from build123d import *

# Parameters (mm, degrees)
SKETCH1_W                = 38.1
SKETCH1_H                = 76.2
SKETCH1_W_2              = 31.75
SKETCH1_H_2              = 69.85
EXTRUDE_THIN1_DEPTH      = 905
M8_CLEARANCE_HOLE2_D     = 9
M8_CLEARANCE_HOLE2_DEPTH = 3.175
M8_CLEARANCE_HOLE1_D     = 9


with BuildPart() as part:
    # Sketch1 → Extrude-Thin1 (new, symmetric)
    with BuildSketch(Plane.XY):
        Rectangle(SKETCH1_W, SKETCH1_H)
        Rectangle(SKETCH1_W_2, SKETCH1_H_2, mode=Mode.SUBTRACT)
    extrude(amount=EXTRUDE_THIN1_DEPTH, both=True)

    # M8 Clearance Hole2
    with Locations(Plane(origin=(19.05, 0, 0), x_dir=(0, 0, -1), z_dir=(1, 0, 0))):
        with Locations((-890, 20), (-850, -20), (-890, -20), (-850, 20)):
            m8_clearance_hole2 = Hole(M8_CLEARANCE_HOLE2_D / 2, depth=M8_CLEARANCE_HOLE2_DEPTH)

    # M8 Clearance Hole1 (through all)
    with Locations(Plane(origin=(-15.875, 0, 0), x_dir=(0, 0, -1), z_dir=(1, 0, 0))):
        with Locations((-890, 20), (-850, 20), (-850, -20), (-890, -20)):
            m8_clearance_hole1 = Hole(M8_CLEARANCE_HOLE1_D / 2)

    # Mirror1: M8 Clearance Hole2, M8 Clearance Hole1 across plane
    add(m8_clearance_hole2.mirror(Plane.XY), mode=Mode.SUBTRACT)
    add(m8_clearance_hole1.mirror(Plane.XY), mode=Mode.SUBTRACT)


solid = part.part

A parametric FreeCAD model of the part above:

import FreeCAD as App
import Part
import Sketcher
Q = App.Units.Quantity

doc = App.newDocument("Part")
body = doc.addObject("PartDesign::Body", "Body")

sketch1 = body.newObject("Sketcher::SketchObject", "Sketch")
sketch1.AttachmentSupport = (doc.getObject("XY_Plane"), [""])
sketch1.MapMode = "FlatFace"
sketch1.addGeometry([
    Part.LineSegment(App.Vector(-19, 38, 0), App.Vector(-19, -38, 0)),
    Part.LineSegment(App.Vector(-19, -38, 0), App.Vector(19, -38, 0)),
    Part.LineSegment(App.Vector(19, -38, 0), App.Vector(19, 38, 0)),
    Part.LineSegment(App.Vector(19, 38, 0), App.Vector(-19, 38, 0)),
    Part.LineSegment(App.Vector(16, -35, 0), App.Vector(-16, -35, 0)),
    Part.LineSegment(App.Vector(-16, -35, 0), App.Vector(-16, 35, 0)),
    Part.LineSegment(App.Vector(-16, 35, 0), App.Vector(16, 35, 0)),
    Part.LineSegment(App.Vector(16, 35, 0), App.Vector(16, -35, 0)),
], False)
sketch1.addConstraint([
    Sketcher.Constraint("Coincident", 0, 2, 1, 1),
    Sketcher.Constraint("Coincident", 1, 2, 2, 1),
    Sketcher.Constraint("Coincident", 2, 2, 3, 1),
    Sketcher.Constraint("Coincident", 3, 2, 0, 1),
    Sketcher.Constraint("Coincident", 4, 2, 5, 1),
    Sketcher.Constraint("Coincident", 5, 2, 6, 1),
    Sketcher.Constraint("Coincident", 6, 2, 7, 1),
    Sketcher.Constraint("Coincident", 7, 2, 4, 1),
    Sketcher.Constraint("Vertical", 0),
    Sketcher.Constraint("Horizontal", 1),
    Sketcher.Constraint("Vertical", 2),
    Sketcher.Constraint("Horizontal", 3),
    Sketcher.Constraint("Horizontal", 4),
    Sketcher.Constraint("Vertical", 5),
    Sketcher.Constraint("Horizontal", 6),
    Sketcher.Constraint("Vertical", 7),
    Sketcher.Constraint("Symmetric", 0, 2, 2, 2, -1, 1),
    Sketcher.Constraint("Symmetric", 4, 2, 6, 2, -1, 1),
    Sketcher.Constraint("DistanceY", 0, 2, 0, 1, Q("3 in")),
    Sketcher.Constraint("DistanceX", 1, 1, 1, 2, Q("1.5 in")),
    Sketcher.Constraint("DistanceX", 4, 2, 4, 1, Q("1.25 in")),
    Sketcher.Constraint("DistanceY", 5, 1, 5, 2, Q("2.75 in")),
])
pad1 = body.newObject("PartDesign::Pad", "Pad")
pad1.Profile = sketch1
pad1.Length = 1810
pad1.Midplane = True

sketch2 = body.newObject("Sketcher::SketchObject", "Sketch001")
sketch2.AttachmentSupport = (doc.getObject("YZ_Plane"), [""])
sketch2.MapMode = "FlatFace"
sketch2.AttachmentOffset = App.Placement(App.Vector(0, 0, 0.75 * 25.4), App.Rotation())
sketch2.addGeometry([
    Part.Circle(App.Vector(20, 890, 0), App.Vector(0, 0, 1), 4.5),
    Part.Circle(App.Vector(-20, 850, 0), App.Vector(0, 0, 1), 4.5),
    Part.Circle(App.Vector(-20, 890, 0), App.Vector(0, 0, 1), 4.5),
    Part.Circle(App.Vector(20, 850, 0), App.Vector(0, 0, 1), 4.5),
], False)
sketch2.addConstraint([
    Sketcher.Constraint("Equal", 0, 1),
    Sketcher.Constraint("Equal", 1, 2),
    Sketcher.Constraint("Equal", 2, 3),
    Sketcher.Constraint("Symmetric", 0, 3, 2, 3, -2),
    Sketcher.Constraint("Symmetric", 1, 3, 3, 3, -2),
    Sketcher.Constraint("Vertical", 1, 3, 2, 3),
    Sketcher.Constraint("Diameter", 0, 9.0),
    Sketcher.Constraint("DistanceX", -1, 1, 0, 3, 20.0),
    Sketcher.Constraint("DistanceY", -1, 1, 0, 3, 890.0),
    Sketcher.Constraint("DistanceY", -1, 1, 1, 3, 850.0),
])
doc.recompute()
hole = body.newObject("PartDesign::Hole", "Hole")
hole.Profile = sketch2
hole.ThreadType = "None"
hole.Diameter = 9
hole.DepthType = "Dimension"
hole.Depth = Q("0.125 in")
hole.DrillPoint = "Flat"

sketch3 = body.newObject("Sketcher::SketchObject", "Sketch002")
sketch3.AttachmentSupport = (doc.getObject("YZ_Plane"), [""])
sketch3.MapMode = "FlatFace"
sketch3.AttachmentOffset = App.Placement(App.Vector(0, 0, -0.625 * 25.4), App.Rotation())
sketch3.addGeometry([
    Part.Circle(App.Vector(20, 890, 0), App.Vector(0, 0, 1), 4.5),
    Part.Circle(App.Vector(20, 850, 0), App.Vector(0, 0, 1), 4.5),
    Part.Circle(App.Vector(-20, 850, 0), App.Vector(0, 0, 1), 4.5),
    Part.Circle(App.Vector(-20, 890, 0), App.Vector(0, 0, 1), 4.5),
], False)
sketch3.addConstraint([
    Sketcher.Constraint("Equal", 0, 1),
    Sketcher.Constraint("Equal", 1, 2),
    Sketcher.Constraint("Equal", 2, 3),
    Sketcher.Constraint("Symmetric", 1, 3, 2, 3, -2),
    Sketcher.Constraint("Symmetric", 0, 3, 3, 3, -2),
    Sketcher.Constraint("Vertical", 0, 3, 1, 3),
    Sketcher.Constraint("Diameter", 0, 9.0),
    Sketcher.Constraint("DistanceX", -1, 1, 0, 3, 20.0),
    Sketcher.Constraint("DistanceY", -1, 1, 0, 3, 890.0),
    Sketcher.Constraint("DistanceY", -1, 1, 1, 3, 850.0),
])
doc.recompute()
hole2 = body.newObject("PartDesign::Hole", "Hole001")
hole2.Profile = sketch3
hole2.ThreadType = "None"
hole2.Diameter = 9
hole2.DepthType = "ThroughAll"
doc.recompute()

mirrored = body.newObject("PartDesign::Mirrored", "Mirrored")
mirrored.Originals = [hole, hole2]
mirrored.MirrorPlane = (doc.getObject("XY_Plane"), [""])
body.Tip = mirrored

doc.recompute()
